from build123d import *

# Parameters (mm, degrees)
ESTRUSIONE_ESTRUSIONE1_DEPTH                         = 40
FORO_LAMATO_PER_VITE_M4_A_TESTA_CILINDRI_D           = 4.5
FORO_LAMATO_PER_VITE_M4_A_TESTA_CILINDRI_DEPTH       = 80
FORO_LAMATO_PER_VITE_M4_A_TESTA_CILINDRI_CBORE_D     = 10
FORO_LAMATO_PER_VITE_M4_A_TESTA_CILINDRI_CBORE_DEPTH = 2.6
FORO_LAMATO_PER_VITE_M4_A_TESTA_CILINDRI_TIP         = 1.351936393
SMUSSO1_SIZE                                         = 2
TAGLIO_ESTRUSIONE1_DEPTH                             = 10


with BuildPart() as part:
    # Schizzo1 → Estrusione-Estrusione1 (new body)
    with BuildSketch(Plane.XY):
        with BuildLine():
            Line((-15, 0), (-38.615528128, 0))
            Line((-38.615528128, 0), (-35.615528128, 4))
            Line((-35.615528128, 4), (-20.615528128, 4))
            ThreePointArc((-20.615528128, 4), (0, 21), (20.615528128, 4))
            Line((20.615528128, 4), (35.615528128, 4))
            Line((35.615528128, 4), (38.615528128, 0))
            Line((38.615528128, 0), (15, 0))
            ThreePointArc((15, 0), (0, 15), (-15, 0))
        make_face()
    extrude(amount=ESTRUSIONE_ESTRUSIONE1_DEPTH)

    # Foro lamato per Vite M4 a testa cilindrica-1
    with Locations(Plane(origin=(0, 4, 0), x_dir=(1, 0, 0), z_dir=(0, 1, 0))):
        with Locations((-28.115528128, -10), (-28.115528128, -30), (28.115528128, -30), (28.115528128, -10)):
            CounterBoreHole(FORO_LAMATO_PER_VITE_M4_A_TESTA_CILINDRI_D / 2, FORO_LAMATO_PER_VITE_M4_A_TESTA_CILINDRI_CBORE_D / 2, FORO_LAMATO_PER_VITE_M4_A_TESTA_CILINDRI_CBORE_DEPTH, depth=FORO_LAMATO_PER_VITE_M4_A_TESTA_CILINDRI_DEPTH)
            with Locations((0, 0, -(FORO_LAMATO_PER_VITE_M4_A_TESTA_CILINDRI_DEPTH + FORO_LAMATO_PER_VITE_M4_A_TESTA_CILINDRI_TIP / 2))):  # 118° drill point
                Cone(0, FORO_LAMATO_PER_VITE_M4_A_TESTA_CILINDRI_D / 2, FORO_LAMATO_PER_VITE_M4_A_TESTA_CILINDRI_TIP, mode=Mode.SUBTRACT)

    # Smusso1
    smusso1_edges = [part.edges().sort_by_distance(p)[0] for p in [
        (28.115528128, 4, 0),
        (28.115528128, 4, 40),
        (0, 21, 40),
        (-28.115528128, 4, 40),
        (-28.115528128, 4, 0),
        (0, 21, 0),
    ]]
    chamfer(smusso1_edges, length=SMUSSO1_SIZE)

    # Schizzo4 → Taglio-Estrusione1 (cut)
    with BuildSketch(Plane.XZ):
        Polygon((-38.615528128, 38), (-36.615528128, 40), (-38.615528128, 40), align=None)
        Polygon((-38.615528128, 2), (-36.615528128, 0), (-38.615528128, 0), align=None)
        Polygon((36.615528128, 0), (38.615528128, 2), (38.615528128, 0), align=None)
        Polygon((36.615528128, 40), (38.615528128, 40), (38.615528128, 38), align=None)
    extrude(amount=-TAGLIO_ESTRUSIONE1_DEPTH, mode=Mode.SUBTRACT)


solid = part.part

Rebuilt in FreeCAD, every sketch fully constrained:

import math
import FreeCAD as App
import Part
import Sketcher
from FreeCAD import Vector
Q = App.Units.Quantity


def edges_at(feature, points):
    """Names of the edges that pass closest to the given points."""
    edges = feature.Shape.Edges
    near = lambda p: min(range(len(edges)), key=lambda i: edges[i].distToShape(Part.Vertex(*p))[0])
    return sorted({f"Edge{near(p) + 1}" for p in points})

doc = App.newDocument("Part")
body = doc.addObject("PartDesign::Body", "Body")

# Sketch on XY plane
sketch1 = doc.addObject("Sketcher::SketchObject", "Sketch")
body.addObject(sketch1)
sketch1.AttachmentSupport = (doc.XY_Plane, [""])
sketch1.MapMode = "FlatFace"
sketch1.addGeometry(Part.LineSegment(Vector(-39, 0, 0), Vector(-15, 0, 0)), False)
sketch1.addGeometry(Part.ArcOfCircle(Part.Circle(Vector(0, 0, 0), Vector(0, 0, 1), 15), math.radians(0), math.radians(180)), False)
sketch1.addGeometry(Part.LineSegment(Vector(15, 0, 0), Vector(39, 0, 0)), False)
sketch1.addGeometry(Part.LineSegment(Vector(39, 0, 0), Vector(36, 4, 0)), False)
sketch1.addGeometry(Part.LineSegment(Vector(36, 4, 0), Vector(21, 4, 0)), False)
sketch1.addGeometry(Part.ArcOfCircle(Part.Circle(Vector(0, 0, 0), Vector(0, 0, 1), 21), math.radians(11), math.radians(169)), False)
sketch1.addGeometry(Part.LineSegment(Vector(-21, 4, 0), Vector(-36, 4, 0)), False)
sketch1.addGeometry(Part.LineSegment(Vector(-36, 4, 0), Vector(-39, 0, 0)), False)
sketch1.addConstraint(Sketcher.Constraint("Coincident", 0, 2, 1, 2))
sketch1.addConstraint(Sketcher.Constraint("Coincident", 1, 1, 2, 1))
sketch1.addConstraint(Sketcher.Constraint("Coincident", 2, 2, 3, 1))
sketch1.addConstraint(Sketcher.Constraint("Coincident", 3, 2, 4, 1))
sketch1.addConstraint(Sketcher.Constraint("Coincident", 4, 2, 5, 1))
sketch1.addConstraint(Sketcher.Constraint("Coincident", 5, 2, 6, 1))
sketch1.addConstraint(Sketcher.Constraint("Coincident", 6, 2, 7, 1))
sketch1.addConstraint(Sketcher.Constraint("Coincident", 7, 2, 0, 1))
sketch1.addConstraint(Sketcher.Constraint("Horizontal", 0))
sketch1.addConstraint(Sketcher.Constraint("Horizontal", 2))
sketch1.addConstraint(Sketcher.Constraint("Horizontal", 4))
sketch1.addConstraint(Sketcher.Constraint("Horizontal", 6))
sketch1.addConstraint(Sketcher.Constraint("Coincident", 1, 3, -1, 1))
sketch1.addConstraint(Sketcher.Constraint("Coincident", 5, 3, -1, 1))
sketch1.addConstraint(Sketcher.Constraint("Symmetric", 2, 2, 7, 2, -1, 1))
sketch1.addConstraint(Sketcher.Constraint("Symmetric", 3, 2, 6, 2, -2))
sketch1.addConstraint(Sketcher.Constraint("PointOnObject", 0, 2, -1))
sketch1.addConstraint(Sketcher.Constraint("Radius", 1, Q("15 mm")))
sketch1.addConstraint(Sketcher.Constraint("Radius", 5, Q("21 mm")))
sketch1.addConstraint(Sketcher.Constraint("DistanceX", 4, 2, 4, 1, Q("15 mm")))
sketch1.addConstraint(Sketcher.Constraint("Distance", 3, Q("5 mm")))
sketch1.addConstraint(Sketcher.Constraint("DistanceY", -1, 1, 3, 2, Q("4 mm")))
pad1 = doc.addObject("PartDesign::Pad", "Pad")
body.addObject(pad1)
pad1.Profile = sketch1
pad1.Length = 40

# Sketch on XZ plane
sketch2 = doc.addObject("Sketcher::SketchObject", "Sketch001")
body.addObject(sketch2)
sketch2.AttachmentSupport = (doc.XZ_Plane, [""])
sketch2.MapMode = "FlatFace"
sketch2.AttachmentOffset = App.Placement(Vector(0, 0, -4), App.Rotation())
sketch2.addGeometry(Part.Circle(Vector(-28.1, 10, 0), Vector(0, 0, 1), 2.2), False)
sketch2.addGeometry(Part.Circle(Vector(-28.1, 30, 0), Vector(0, 0, 1), 2.2), False)
sketch2.addGeometry(Part.Circle(Vector(28.1, 30, 0), Vector(0, 0, 1), 2.2), False)
sketch2.addGeometry(Part.Circle(Vector(28.1, 10, 0), Vector(0, 0, 1), 2.2), False)
sketch2.addConstraint(Sketcher.Constraint("Equal", 0, 1))
sketch2.addConstraint(Sketcher.Constraint("Equal", 1, 2))
sketch2.addConstraint(Sketcher.Constraint("Equal", 2, 3))
sketch2.addConstraint(Sketcher.Constraint("Symmetric", 1, 3, 2, 3, -2))
sketch2.addConstraint(Sketcher.Constraint("Symmetric", 0, 3, 3, 3, -2))
sketch2.addConstraint(Sketcher.Constraint("Vertical", 0, 3, 1, 3))
sketch2.addConstraint(Sketcher.Constraint("Diameter", 0, Q("4.5 mm")))
sketch2.addConstraint(Sketcher.Constraint("DistanceY", -1, 1, 0, 3, Q("10 mm")))
sketch2.addConstraint(Sketcher.Constraint("DistanceY", -1, 1, 1, 3, Q("30 mm")))
sketch2.addConstraint(Sketcher.Constraint("DistanceX", 0, 3, -1, 1, Q("28.115528 mm")))
doc.recompute()
hole = doc.addObject("PartDesign::Hole", "Hole")
body.addObject(hole)
hole.Profile = sketch2
hole.ThreadType = "None"
hole.Diameter = 4.5
hole.DepthType = "Dimension"
hole.Depth = 80
hole.DrillPoint = "Angled"
hole.DrillPointAngle = 118
hole.HoleCutType = "Counterbore"
hole.HoleCutDiameter = 10
hole.HoleCutDepth = 2.6
hole.Reversed = True
doc.recompute()

chamfer = doc.addObject("PartDesign::Chamfer", "Chamfer")
body.addObject(chamfer)
chamfer.Base = (hole, edges_at(hole, [
    (28.116, 4, 0),
    (28.116, 4, 40),
    (0, 21, 40),
    (-28.116, 4, 40),
    (-28.116, 4, 0),
    (0, 21, 0),
]))
chamfer.Size = 2

# Sketch on XZ plane
sketch3 = doc.addObject("Sketcher::SketchObject", "Sketch002")
body.addObject(sketch3)
sketch3.AttachmentSupport = (doc.XZ_Plane, [""])
sketch3.MapMode = "FlatFace"
sketch3.addGeometry(Part.LineSegment(Vector(-38.6, 38, 0), Vector(-36.6, 40, 0)), False)
sketch3.addGeometry(Part.LineSegment(Vector(-36.6, 40, 0), Vector(-38.6, 40, 0)), False)
sketch3.addGeometry(Part.LineSegment(Vector(-38.6, 40, 0), Vector(-38.6, 38, 0)), False)
sketch3.addGeometry(Part.LineSegment(Vector(-36.6, 0, 0), Vector(-38.6, 2, 0)), False)
sketch3.addGeometry(Part.LineSegment(Vector(-38.6, 2, 0), Vector(-38.6, 0, 0)), False)
sketch3.addGeometry(Part.LineSegment(Vector(-38.6, 0, 0), Vector(-36.6, 0, 0)), False)
sketch3.addGeometry(Part.LineSegment(Vector(38.6, 2, 0), Vector(36.6, 0, 0)), False)
sketch3.addGeometry(Part.LineSegment(Vector(36.6, 0, 0), Vector(38.6, 0, 0)), False)
sketch3.addGeometry(Part.LineSegment(Vector(38.6, 0, 0), Vector(38.6, 2, 0)), False)
sketch3.addGeometry(Part.LineSegment(Vector(38.6, 40, 0), Vector(36.6, 40, 0)), False)
sketch3.addGeometry(Part.LineSegment(Vector(36.6, 40, 0), Vector(38.6, 38, 0)), False)
sketch3.addGeometry(Part.LineSegment(Vector(38.6, 38, 0), Vector(38.6, 40, 0)), False)
sketch3.addConstraint(Sketcher.Constraint("Coincident", 0, 2, 1, 1))
sketch3.addConstraint(Sketcher.Constraint("Coincident", 1, 2, 2, 1))
sketch3.addConstraint(Sketcher.Constraint("Coincident", 2, 2, 0, 1))
sketch3.addConstraint(Sketcher.Constraint("Coincident", 3, 2, 4, 1))
sketch3.addConstraint(Sketcher.Constraint("Coincident", 4, 2, 5, 1))
sketch3.addConstraint(Sketcher.Constraint("Coincident", 5, 2, 3, 1))
sketch3.addConstraint(Sketcher.Constraint("Coincident", 6, 2, 7, 1))
sketch3.addConstraint(Sketcher.Constraint("Coincident", 7, 2, 8, 1))
sketch3.addConstraint(Sketcher.Constraint("Coincident", 8, 2, 6, 1))
sketch3.addConstraint(Sketcher.Constraint("Coincident", 9, 2, 10, 1))
sketch3.addConstraint(Sketcher.Constraint("Coincident", 10, 2, 11, 1))
sketch3.addConstraint(Sketcher.Constraint("Coincident", 11, 2, 9, 1))
sketch3.addConstraint(Sketcher.Constraint("Horizontal", 1))
sketch3.addConstraint(Sketcher.Constraint("Vertical", 2))
sketch3.addConstraint(Sketcher.Constraint("Vertical", 4))
sketch3.addConstraint(Sketcher.Constraint("Horizontal", 5))
sketch3.addConstraint(Sketcher.Constraint("Horizontal", 7))
sketch3.addConstraint(Sketcher.Constraint("Vertical", 8))
sketch3.addConstraint(Sketcher.Constraint("Horizontal", 9))
sketch3.addConstraint(Sketcher.Constraint("Vertical", 11))
sketch3.addConstraint(Sketcher.Constraint("Symmetric", 5, 2, 6, 2, -1, 1))
sketch3.addConstraint(Sketcher.Constraint("Symmetric", 4, 2, 7, 2, -2))
sketch3.addConstraint(Sketcher.Constraint("Symmetric", 0, 2, 9, 2, -2))
sketch3.addConstraint(Sketcher.Constraint("Symmetric", 2, 2, 10, 2, -2))
sketch3.addConstraint(Sketcher.Constraint("Perpendicular", 0, 3))
sketch3.addConstraint(Sketcher.Constraint("Perpendicular", 3, 6))
sketch3.addConstraint(Sketcher.Constraint("Perpendicular", 6, 10))
sketch3.addConstraint(Sketcher.Constraint("Vertical", 2, 2, 3, 2))
sketch3.addConstraint(Sketcher.Constraint("Vertical", 0, 2, 5, 2))
sketch3.addConstraint(Sketcher.Constraint("DistanceX", 1, 2, 1, 1, Q("2 mm")))
sketch3.addConstraint(Sketcher.Constraint("DistanceY", -1, 1, 0, 2, Q("40 mm")))
sketch3.addConstraint(Sketcher.Constraint("DistanceX", 0, 2, -1, 1, Q("36.615528 mm")))
pocket1 = doc.addObject("PartDesign::Pocket", "Pocket")
body.addObject(pocket1)
pocket1.Profile = sketch3
pocket1.Length = 10

doc.recompute()
